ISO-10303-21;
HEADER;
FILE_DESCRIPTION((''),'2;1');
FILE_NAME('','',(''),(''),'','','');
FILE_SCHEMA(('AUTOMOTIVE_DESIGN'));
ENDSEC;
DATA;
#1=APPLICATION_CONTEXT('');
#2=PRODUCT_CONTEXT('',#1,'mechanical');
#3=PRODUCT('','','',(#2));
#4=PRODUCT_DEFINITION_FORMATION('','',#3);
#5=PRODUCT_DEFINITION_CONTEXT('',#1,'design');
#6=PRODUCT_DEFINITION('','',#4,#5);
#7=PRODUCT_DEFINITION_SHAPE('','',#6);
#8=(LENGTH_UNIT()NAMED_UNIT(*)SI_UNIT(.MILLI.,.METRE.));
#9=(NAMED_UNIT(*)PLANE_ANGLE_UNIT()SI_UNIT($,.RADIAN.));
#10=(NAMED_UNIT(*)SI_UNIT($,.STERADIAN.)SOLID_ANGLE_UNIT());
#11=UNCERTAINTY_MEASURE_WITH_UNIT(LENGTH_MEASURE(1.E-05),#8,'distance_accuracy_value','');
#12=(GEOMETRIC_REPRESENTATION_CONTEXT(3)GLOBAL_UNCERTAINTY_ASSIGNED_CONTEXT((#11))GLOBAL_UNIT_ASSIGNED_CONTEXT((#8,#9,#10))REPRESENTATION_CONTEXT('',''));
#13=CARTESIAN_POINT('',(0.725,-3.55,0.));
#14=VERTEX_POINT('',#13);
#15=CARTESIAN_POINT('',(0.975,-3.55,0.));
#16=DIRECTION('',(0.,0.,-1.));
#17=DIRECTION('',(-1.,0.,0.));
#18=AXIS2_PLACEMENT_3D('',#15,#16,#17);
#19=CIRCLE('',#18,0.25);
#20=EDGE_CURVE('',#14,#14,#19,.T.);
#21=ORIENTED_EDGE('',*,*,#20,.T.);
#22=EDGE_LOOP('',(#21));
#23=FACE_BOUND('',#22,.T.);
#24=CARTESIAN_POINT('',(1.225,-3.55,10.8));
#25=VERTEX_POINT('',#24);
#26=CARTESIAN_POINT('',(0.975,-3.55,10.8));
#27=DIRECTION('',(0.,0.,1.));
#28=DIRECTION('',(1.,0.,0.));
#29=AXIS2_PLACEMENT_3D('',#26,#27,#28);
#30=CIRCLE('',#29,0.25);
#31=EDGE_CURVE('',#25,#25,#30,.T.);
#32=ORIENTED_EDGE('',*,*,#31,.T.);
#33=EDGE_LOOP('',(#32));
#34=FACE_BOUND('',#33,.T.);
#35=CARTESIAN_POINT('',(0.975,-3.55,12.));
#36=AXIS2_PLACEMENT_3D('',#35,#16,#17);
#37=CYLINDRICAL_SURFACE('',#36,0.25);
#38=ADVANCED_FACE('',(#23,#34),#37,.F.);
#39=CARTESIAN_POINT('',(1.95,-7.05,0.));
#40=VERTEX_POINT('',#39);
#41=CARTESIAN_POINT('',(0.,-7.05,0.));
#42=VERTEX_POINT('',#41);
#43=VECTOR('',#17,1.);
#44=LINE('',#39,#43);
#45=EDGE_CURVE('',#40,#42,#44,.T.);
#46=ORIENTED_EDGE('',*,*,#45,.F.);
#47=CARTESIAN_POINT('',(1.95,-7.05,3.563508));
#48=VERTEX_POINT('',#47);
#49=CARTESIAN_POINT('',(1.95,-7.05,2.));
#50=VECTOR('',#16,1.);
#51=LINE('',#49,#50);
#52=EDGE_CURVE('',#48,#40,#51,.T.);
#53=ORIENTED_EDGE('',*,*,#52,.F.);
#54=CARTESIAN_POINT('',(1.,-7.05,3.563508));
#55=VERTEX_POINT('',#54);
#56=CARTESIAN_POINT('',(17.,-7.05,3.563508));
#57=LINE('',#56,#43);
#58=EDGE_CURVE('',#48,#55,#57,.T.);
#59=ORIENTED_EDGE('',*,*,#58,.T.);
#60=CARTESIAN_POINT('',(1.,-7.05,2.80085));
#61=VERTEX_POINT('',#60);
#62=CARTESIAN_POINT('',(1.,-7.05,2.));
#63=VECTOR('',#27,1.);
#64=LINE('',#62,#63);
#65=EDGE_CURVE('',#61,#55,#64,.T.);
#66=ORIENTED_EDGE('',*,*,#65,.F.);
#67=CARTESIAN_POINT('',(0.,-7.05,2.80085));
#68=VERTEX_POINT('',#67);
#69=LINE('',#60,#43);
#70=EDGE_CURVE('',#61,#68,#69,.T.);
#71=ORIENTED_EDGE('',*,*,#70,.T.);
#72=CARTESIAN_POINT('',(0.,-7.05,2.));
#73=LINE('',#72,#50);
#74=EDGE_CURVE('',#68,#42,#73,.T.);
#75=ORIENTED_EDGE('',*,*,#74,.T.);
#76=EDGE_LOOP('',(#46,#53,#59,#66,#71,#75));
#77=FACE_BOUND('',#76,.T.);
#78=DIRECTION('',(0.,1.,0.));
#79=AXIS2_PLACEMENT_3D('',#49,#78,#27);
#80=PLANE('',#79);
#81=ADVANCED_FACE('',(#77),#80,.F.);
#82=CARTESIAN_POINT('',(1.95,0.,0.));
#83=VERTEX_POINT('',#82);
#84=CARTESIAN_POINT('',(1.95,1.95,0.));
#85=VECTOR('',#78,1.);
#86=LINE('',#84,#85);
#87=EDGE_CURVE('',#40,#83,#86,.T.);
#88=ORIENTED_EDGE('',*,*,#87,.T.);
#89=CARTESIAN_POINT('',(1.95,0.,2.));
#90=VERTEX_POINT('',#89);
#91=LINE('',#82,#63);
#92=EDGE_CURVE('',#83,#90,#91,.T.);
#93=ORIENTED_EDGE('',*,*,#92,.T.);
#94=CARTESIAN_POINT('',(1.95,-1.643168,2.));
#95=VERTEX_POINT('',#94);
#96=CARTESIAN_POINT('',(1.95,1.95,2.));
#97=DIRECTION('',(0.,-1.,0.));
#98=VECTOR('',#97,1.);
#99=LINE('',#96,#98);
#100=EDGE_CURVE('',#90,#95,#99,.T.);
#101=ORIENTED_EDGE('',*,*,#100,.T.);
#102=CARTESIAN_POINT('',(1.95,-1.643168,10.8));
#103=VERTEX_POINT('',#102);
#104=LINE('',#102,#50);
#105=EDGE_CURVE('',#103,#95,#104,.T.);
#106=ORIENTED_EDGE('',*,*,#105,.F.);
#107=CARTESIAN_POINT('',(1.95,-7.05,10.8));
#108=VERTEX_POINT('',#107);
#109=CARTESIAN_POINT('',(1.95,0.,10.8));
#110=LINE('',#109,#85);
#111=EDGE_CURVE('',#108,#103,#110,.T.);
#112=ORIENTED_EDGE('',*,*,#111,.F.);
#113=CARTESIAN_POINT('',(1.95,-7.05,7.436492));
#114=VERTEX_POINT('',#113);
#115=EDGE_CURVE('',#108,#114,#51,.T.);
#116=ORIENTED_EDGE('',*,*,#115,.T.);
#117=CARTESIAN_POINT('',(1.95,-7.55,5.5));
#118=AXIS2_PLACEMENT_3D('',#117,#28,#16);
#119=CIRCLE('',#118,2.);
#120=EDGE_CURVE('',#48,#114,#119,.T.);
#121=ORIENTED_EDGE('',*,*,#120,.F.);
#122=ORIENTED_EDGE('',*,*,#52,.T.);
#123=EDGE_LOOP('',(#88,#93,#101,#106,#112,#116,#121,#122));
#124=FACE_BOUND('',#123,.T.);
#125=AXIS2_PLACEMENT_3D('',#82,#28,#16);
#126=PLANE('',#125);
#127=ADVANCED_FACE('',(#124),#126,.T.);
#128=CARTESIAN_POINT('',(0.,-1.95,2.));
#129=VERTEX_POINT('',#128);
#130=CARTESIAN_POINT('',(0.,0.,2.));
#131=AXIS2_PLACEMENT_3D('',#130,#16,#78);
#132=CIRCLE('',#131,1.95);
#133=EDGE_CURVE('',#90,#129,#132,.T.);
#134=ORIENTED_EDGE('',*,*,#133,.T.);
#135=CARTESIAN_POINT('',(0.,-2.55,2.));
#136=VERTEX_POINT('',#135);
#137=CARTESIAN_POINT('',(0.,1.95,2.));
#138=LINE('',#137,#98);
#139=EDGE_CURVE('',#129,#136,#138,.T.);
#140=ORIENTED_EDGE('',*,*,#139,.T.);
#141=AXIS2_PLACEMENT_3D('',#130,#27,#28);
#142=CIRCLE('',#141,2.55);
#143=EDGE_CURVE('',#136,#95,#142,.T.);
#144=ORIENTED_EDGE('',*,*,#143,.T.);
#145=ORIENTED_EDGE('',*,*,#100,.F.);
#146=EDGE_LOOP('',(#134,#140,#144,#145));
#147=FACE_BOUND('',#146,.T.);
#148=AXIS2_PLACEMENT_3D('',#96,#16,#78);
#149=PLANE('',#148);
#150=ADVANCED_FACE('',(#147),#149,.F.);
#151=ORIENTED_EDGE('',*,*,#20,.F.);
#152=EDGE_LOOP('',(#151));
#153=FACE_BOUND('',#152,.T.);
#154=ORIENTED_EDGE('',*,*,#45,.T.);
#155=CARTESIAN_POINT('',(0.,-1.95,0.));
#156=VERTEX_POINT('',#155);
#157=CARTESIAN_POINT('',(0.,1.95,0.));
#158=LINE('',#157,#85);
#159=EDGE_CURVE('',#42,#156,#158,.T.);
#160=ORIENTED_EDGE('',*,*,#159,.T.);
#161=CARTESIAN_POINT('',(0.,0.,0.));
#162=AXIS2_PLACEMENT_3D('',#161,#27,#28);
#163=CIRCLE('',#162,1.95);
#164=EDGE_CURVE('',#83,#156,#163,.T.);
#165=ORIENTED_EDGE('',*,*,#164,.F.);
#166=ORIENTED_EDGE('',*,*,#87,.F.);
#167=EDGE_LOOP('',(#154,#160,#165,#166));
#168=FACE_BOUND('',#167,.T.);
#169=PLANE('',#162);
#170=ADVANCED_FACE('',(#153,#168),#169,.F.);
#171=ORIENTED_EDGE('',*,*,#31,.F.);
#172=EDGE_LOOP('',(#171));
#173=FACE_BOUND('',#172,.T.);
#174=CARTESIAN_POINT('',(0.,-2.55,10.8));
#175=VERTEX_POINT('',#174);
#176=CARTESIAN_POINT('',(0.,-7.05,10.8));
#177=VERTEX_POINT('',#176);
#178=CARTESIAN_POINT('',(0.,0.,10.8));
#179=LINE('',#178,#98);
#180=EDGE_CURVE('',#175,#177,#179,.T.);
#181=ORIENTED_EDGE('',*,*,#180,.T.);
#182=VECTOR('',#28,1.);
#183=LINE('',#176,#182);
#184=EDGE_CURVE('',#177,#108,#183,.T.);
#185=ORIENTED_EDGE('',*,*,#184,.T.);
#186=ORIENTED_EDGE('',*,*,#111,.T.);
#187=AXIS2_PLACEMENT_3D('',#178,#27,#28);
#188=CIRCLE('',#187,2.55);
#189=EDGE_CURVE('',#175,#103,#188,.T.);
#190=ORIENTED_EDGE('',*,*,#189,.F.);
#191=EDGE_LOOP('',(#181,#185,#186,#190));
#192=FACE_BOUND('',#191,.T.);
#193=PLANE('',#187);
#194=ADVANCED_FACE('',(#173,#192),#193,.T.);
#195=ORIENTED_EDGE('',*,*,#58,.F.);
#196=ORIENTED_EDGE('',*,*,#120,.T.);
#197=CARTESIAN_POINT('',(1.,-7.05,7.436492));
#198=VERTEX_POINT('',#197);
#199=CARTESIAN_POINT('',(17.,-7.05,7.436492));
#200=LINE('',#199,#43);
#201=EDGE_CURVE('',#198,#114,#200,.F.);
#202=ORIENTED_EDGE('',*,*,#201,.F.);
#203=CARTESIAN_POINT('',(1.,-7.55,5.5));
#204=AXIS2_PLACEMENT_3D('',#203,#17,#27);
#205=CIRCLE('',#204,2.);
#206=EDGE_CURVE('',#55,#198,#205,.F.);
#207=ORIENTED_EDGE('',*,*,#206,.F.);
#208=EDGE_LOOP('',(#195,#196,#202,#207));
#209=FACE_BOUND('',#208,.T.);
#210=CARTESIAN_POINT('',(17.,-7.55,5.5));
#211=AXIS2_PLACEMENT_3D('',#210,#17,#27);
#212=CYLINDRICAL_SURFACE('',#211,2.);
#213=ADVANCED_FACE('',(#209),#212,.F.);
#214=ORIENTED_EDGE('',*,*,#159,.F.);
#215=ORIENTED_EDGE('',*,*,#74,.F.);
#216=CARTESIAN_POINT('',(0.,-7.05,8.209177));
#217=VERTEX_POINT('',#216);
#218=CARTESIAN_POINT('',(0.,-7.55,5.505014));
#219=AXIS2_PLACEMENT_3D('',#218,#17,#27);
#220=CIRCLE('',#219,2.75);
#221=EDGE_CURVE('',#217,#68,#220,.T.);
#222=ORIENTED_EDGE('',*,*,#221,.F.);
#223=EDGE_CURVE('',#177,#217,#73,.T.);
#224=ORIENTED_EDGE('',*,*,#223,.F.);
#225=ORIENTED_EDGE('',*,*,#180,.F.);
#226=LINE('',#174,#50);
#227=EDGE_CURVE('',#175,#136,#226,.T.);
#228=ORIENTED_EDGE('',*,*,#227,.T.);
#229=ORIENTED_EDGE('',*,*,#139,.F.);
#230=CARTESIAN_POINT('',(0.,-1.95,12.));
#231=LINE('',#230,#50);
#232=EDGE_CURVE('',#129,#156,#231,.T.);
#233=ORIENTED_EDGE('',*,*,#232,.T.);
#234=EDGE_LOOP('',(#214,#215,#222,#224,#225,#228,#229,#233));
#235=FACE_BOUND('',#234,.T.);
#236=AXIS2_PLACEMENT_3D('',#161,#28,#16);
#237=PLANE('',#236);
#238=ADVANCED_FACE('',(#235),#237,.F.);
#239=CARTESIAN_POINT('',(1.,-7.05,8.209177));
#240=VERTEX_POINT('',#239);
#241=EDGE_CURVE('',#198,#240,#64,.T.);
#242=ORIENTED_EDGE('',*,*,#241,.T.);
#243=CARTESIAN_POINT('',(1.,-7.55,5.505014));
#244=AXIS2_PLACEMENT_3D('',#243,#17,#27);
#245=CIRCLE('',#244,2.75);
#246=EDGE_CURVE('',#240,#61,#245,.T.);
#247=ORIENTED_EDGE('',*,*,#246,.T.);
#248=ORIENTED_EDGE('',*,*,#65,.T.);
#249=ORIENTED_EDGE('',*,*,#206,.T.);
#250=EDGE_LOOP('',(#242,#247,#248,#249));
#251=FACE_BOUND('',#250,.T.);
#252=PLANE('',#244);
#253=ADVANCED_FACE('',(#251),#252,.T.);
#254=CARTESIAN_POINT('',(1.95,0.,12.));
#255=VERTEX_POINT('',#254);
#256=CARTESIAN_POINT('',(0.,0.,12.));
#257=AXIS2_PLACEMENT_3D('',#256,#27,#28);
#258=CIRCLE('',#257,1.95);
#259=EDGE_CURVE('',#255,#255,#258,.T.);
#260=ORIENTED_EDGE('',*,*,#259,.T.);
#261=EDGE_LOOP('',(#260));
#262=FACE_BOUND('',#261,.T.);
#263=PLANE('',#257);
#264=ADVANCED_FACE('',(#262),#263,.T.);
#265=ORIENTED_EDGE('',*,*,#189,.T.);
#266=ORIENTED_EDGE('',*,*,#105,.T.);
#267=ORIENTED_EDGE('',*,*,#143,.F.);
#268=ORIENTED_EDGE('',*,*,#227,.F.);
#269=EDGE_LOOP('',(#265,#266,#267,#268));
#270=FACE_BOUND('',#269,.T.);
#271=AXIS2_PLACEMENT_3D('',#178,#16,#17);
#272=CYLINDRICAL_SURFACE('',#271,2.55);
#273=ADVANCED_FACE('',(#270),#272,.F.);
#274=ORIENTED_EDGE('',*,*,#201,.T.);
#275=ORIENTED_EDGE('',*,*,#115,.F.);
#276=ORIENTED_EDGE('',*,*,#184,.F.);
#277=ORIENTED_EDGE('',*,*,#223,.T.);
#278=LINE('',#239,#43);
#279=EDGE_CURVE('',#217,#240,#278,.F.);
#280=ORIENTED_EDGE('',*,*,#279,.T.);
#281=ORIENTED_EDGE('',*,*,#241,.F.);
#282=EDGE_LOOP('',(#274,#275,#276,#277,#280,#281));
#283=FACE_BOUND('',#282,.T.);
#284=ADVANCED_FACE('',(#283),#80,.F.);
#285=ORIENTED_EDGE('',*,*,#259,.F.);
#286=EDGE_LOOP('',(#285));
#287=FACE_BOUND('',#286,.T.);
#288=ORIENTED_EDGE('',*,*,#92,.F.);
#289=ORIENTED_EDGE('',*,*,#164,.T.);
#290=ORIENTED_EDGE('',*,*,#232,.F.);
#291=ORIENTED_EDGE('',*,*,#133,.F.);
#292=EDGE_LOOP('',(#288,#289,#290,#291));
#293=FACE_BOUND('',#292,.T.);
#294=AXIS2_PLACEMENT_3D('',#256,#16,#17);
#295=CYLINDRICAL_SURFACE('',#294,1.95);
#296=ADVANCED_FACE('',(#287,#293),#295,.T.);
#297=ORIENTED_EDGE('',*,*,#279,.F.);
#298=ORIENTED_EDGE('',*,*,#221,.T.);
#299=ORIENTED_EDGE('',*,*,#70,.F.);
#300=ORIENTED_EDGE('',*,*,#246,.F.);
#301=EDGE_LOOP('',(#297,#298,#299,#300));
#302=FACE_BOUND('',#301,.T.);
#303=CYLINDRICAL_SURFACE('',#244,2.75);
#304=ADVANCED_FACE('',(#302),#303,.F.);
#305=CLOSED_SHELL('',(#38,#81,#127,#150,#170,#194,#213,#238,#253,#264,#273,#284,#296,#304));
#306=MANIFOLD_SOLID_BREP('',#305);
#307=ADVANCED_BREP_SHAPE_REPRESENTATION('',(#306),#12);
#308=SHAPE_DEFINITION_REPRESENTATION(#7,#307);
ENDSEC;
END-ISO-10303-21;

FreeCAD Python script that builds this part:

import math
import FreeCAD as App
import Part
import Sketcher


def add_polygon(sketch, points):
    """Adds a closed chain of lines whose ends are joined by coincident constraints."""
    first, n = sketch.GeometryCount, len(points)
    for a, b in zip(points, points[1:] + points[:1]):
        sketch.addGeometry(Part.LineSegment(App.Vector(*a, 0), App.Vector(*b, 0)), False)
    for i in range(n):
        sketch.addConstraint(Sketcher.Constraint("Coincident", first + i, 2, first + (i + 1) % n, 1))

doc = App.newDocument("Part")
body = doc.addObject("PartDesign::Body", "Body")

sketch1 = doc.addObject("Sketcher::SketchObject", "Sketch")
body.addObject(sketch1)
sketch1.AttachmentSupport = (doc.XY_Plane, [""])
sketch1.MapMode = "FlatFace"
sketch1.addGeometry(Part.Circle(App.Vector(0, 0, 0), App.Vector(0, 0, 1), 1.9), False)
sketch1.addConstraint(Sketcher.Constraint("Coincident", 0, 3, -1, 1))
sketch1.addConstraint(Sketcher.Constraint("Diameter", 0, 3.9))
pad1 = doc.addObject("PartDesign::Pad", "Pad")
body.addObject(pad1)
pad1.Profile = sketch1
pad1.Length = 12

sketch2 = doc.addObject("Sketcher::SketchObject", "Sketch001")
body.addObject(sketch2)
sketch2.AttachmentSupport = (doc.YZ_Plane, [""])
sketch2.MapMode = "FlatFace"
add_polygon(sketch2, [(1.9, 2), (-7, 2), (-7, 0), (1.9, 0)])
sketch2.addConstraint(Sketcher.Constraint("Horizontal", 0))
sketch2.addConstraint(Sketcher.Constraint("Vertical", 1))
sketch2.addConstraint(Sketcher.Constraint("Horizontal", 2))
sketch2.addConstraint(Sketcher.Constraint("Vertical", 3))
sketch2.addConstraint(Sketcher.Constraint("PointOnObject", 1, 2, -1))
sketch2.addConstraint(Sketcher.Constraint("DistanceX", 0, 2, 0, 1, 9.0))
sketch2.addConstraint(Sketcher.Constraint("DistanceY", 1, 2, 1, 1, 2.0))
sketch2.addConstraint(Sketcher.Constraint("DistanceX", 0, 2, -1, 1, 7.05))
pad2 = doc.addObject("PartDesign::Pad", "Pad001")
body.addObject(pad2)
pad2.Profile = sketch2
pad2.Length = 1.95

sketch3 = doc.addObject("Sketcher::SketchObject", "Sketch002")
body.addObject(sketch3)
sketch3.AttachmentSupport = (doc.XY_Plane, [""])
sketch3.MapMode = "FlatFace"
sketch3.AttachmentOffset = App.Placement(App.Vector(0, 0, 2), App.Rotation())
sketch3.addGeometry(Part.ArcOfCircle(Part.Circle(App.Vector(0, 0, 0), App.Vector(0, 0, 1), 2.6), math.radians(-90), math.radians(-40)), False)
sketch3.addGeometry(Part.LineSegment(App.Vector(0, -2.5, 0), App.Vector(0, -7, 0)), False)
sketch3.addGeometry(Part.LineSegment(App.Vector(0, -7, 0), App.Vector(1.9, -7, 0)), False)
sketch3.addGeometry(Part.LineSegment(App.Vector(1.9, -7, 0), App.Vector(1.9, -1.6, 0)), False)
sketch3.addConstraint(Sketcher.Constraint("Coincident", 0, 1, 1, 1))
sketch3.addConstraint(Sketcher.Constraint("Coincident", 1, 2, 2, 1))
sketch3.addConstraint(Sketcher.Constraint("Coincident", 2, 2, 3, 1))
sketch3.addConstraint(Sketcher.Constraint("Coincident", 3, 2, 0, 2))
sketch3.addConstraint(Sketcher.Constraint("Vertical", 1))
sketch3.addConstraint(Sketcher.Constraint("Horizontal", 2))
sketch3.addConstraint(Sketcher.Constraint("Vertical", 3))
sketch3.addConstraint(Sketcher.Constraint("Coincident", 0, 3, -1, 1))
sketch3.addConstraint(Sketcher.Constraint("PointOnObject", 0, 1, -2))
sketch3.addConstraint(Sketcher.Constraint("DistanceY", 1, 2, 1, 1, 4.5))
sketch3.addConstraint(Sketcher.Constraint("DistanceX", 2, 1, 2, 2, 1.95))
sketch3.addConstraint(Sketcher.Constraint("DistanceY", 0, 1, -1, 1, 2.55))
pad3 = doc.addObject("PartDesign::Pad", "Pad002")
body.addObject(pad3)
pad3.Profile = sketch3
pad3.Length = 8.8

sketch4 = doc.addObject("Sketcher::SketchObject", "Sketch003")
body.addObject(sketch4)
sketch4.AttachmentSupport = (doc.YZ_Plane, [""])
sketch4.MapMode = "FlatFace"
sketch4.addGeometry(Part.Circle(App.Vector(-7.5, 5.5, 0), App.Vector(0, 0, 1), 2), False)
sketch4.addConstraint(Sketcher.Constraint("Diameter", 0, 4.0))
sketch4.addConstraint(Sketcher.Constraint("DistanceY", -1, 1, 0, 3, 5.5))
sketch4.addConstraint(Sketcher.Constraint("DistanceX", 0, 3, -1, 1, 7.55))
pocket1 = doc.addObject("PartDesign::Pocket", "Pocket")
body.addObject(pocket1)
pocket1.Profile = sketch4
pocket1.Length = 17
pocket1.Reversed = True

sketch5 = doc.addObject("Sketcher::SketchObject", "Sketch004")
body.addObject(sketch5)
sketch5.AttachmentSupport = (doc.YZ_Plane, [""])
sketch5.MapMode = "FlatFace"
sketch5.addGeometry(Part.Circle(App.Vector(-7.5, 5.5, 0), App.Vector(0, 0, 1), 2.8), False)
sketch5.addConstraint(Sketcher.Constraint("Diameter", 0, 5.5))
sketch5.addConstraint(Sketcher.Constraint("DistanceX", 0, 3, -1, 1, 7.55))
sketch5.addConstraint(Sketcher.Constraint("DistanceY", -1, 1, 0, 3, 5.505014))
pocket2 = doc.addObject("PartDesign::Pocket", "Pocket001")
body.addObject(pocket2)
pocket2.Profile = sketch5
pocket2.Length = 1
pocket2.Reversed = True

sketch6 = doc.addObject("Sketcher::SketchObject", "Sketch005")
body.addObject(sketch6)
sketch6.AttachmentSupport = (doc.XY_Plane, [""])
sketch6.MapMode = "FlatFace"
sketch6.AttachmentOffset = App.Placement(App.Vector(0, 0, 2), App.Rotation())
sketch6.addGeometry(Part.LineSegment(App.Vector(1.9, 0, 0), App.Vector(1.9, 1.9, 0)), False)
sketch6.addGeometry(Part.LineSegment(App.Vector(1.9, 1.9, 0), App.Vector(0, 1.9, 0)), False)
sketch6.addGeometry(Part.ArcOfCircle(Part.Circle(App.Vector(0, 0, 0), App.Vector(0, 0, 1), 2), math.radians(0), math.radians(90)), False)
sketch6.addConstraint(Sketcher.Constraint("Coincident", 0, 2, 1, 1))
sketch6.addConstraint(Sketcher.Constraint("Tangent", 1, 2, 2, 2))
sketch6.addConstraint(Sketcher.Constraint("Tangent", 2, 1, 0, 1))
sketch6.addConstraint(Sketcher.Constraint("Vertical", 0))
sketch6.addConstraint(Sketcher.Constraint("Horizontal", 1))
sketch6.addConstraint(Sketcher.Constraint("Coincident", 2, 3, -1, 1))
sketch6.addConstraint(Sketcher.Constraint("Radius", 2, 1.950001))
pocket3 = doc.addObject("PartDesign::Pocket", "Pocket002")
body.addObject(pocket3)
pocket3.Profile = sketch6
pocket3.Type = "ThroughAll"

sketch7 = doc.addObject("Sketcher::SketchObject", "Sketch006")
body.addObject(sketch7)
sketch7.AttachmentSupport = (doc.XY_Plane, [""])
sketch7.MapMode = "FlatFace"
sketch7.addGeometry(Part.Circle(App.Vector(0.97, -3.55, 0), App.Vector(0, 0, 1), 0.25), False)
sketch7.addConstraint(Sketcher.Constraint("Diameter", 0, 0.5))
sketch7.addConstraint(Sketcher.Constraint("DistanceY", 0, 3, -1, 1, 3.55))
sketch7.addConstraint(Sketcher.Constraint("DistanceX", -1, 1, 0, 3, 0.975))
pocket4 = doc.addObject("PartDesign::Pocket", "Pocket003")
body.addObject(pocket4)
pocket4.Profile = sketch7
pocket4.Type = "ThroughAll"
pocket4.Reversed = True

doc.recompute()
